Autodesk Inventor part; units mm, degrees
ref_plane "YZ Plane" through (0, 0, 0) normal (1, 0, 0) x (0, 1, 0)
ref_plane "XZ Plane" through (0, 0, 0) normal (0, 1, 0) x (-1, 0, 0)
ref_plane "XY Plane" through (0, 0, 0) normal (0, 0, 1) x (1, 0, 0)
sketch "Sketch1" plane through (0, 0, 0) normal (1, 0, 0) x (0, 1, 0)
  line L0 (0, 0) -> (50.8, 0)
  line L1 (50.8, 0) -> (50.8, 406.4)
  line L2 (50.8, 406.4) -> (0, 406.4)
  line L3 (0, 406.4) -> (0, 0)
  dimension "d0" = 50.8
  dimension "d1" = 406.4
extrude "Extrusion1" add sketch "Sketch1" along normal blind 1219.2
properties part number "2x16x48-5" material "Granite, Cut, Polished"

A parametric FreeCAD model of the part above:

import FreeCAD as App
import Part
import Sketcher
from FreeCAD import Vector
Q = App.Units.Quantity

doc = App.newDocument("Part")
params = doc.addObject("Spreadsheet::Sheet", "Params")
for row, (alias, value) in enumerate([
    ("sketch1_width", "2 in"),
    ("sketch1_height", "16 in"),
    ("pad1_length", "48 in"),
], start=1):
    params.set(f"A{row}", alias)
    params.set(f"B{row}", "=" + value)
    params.setAlias(f"B{row}", alias)

body = doc.addObject("PartDesign::Body", "Body")

# Sketch on YZ plane
sketch1 = body.newObject("Sketcher::SketchObject", "Sketch")
sketch1.AttachmentSupport = (doc.getObject("YZ_Plane"), [""])
sketch1.MapMode = "FlatFace"
sketch1.addGeometry([
    Part.LineSegment(Vector(0, 406.4, 0), Vector(0, 0, 0)),
    Part.LineSegment(Vector(0, 0, 0), Vector(50.8, 0, 0)),
    Part.LineSegment(Vector(50.8, 0, 0), Vector(50.8, 406.4, 0)),
    Part.LineSegment(Vector(50.8, 406.4, 0), Vector(0, 406.4, 0)),
], False)
sketch1.addConstraint([
    Sketcher.Constraint("Coincident", 0, 2, 1, 1),
    Sketcher.Constraint("Coincident", 1, 2, 2, 1),
    Sketcher.Constraint("Coincident", 2, 2, 3, 1),
    Sketcher.Constraint("Coincident", 3, 2, 0, 1),
    Sketcher.Constraint("Vertical", 0),
    Sketcher.Constraint("Horizontal", 1),
    Sketcher.Constraint("Vertical", 2),
    Sketcher.Constraint("Horizontal", 3),
    Sketcher.Constraint("Coincident", 0, 2, -1, 1),
    Sketcher.Constraint("DistanceX", 1, 1, 1, 2, Q("2 in")),
    Sketcher.Constraint("DistanceY", 0, 2, 0, 1, Q("16 in")),
])
sketch1.setExpression("Constraints[9]", "Params.sketch1_width")
sketch1.setExpression("Constraints[10]", "Params.sketch1_height")
pad1 = body.newObject("PartDesign::Pad", "Pad")
pad1.Profile = sketch1
pad1.setExpression("Length", "Params.pad1_length")

doc.recompute()
